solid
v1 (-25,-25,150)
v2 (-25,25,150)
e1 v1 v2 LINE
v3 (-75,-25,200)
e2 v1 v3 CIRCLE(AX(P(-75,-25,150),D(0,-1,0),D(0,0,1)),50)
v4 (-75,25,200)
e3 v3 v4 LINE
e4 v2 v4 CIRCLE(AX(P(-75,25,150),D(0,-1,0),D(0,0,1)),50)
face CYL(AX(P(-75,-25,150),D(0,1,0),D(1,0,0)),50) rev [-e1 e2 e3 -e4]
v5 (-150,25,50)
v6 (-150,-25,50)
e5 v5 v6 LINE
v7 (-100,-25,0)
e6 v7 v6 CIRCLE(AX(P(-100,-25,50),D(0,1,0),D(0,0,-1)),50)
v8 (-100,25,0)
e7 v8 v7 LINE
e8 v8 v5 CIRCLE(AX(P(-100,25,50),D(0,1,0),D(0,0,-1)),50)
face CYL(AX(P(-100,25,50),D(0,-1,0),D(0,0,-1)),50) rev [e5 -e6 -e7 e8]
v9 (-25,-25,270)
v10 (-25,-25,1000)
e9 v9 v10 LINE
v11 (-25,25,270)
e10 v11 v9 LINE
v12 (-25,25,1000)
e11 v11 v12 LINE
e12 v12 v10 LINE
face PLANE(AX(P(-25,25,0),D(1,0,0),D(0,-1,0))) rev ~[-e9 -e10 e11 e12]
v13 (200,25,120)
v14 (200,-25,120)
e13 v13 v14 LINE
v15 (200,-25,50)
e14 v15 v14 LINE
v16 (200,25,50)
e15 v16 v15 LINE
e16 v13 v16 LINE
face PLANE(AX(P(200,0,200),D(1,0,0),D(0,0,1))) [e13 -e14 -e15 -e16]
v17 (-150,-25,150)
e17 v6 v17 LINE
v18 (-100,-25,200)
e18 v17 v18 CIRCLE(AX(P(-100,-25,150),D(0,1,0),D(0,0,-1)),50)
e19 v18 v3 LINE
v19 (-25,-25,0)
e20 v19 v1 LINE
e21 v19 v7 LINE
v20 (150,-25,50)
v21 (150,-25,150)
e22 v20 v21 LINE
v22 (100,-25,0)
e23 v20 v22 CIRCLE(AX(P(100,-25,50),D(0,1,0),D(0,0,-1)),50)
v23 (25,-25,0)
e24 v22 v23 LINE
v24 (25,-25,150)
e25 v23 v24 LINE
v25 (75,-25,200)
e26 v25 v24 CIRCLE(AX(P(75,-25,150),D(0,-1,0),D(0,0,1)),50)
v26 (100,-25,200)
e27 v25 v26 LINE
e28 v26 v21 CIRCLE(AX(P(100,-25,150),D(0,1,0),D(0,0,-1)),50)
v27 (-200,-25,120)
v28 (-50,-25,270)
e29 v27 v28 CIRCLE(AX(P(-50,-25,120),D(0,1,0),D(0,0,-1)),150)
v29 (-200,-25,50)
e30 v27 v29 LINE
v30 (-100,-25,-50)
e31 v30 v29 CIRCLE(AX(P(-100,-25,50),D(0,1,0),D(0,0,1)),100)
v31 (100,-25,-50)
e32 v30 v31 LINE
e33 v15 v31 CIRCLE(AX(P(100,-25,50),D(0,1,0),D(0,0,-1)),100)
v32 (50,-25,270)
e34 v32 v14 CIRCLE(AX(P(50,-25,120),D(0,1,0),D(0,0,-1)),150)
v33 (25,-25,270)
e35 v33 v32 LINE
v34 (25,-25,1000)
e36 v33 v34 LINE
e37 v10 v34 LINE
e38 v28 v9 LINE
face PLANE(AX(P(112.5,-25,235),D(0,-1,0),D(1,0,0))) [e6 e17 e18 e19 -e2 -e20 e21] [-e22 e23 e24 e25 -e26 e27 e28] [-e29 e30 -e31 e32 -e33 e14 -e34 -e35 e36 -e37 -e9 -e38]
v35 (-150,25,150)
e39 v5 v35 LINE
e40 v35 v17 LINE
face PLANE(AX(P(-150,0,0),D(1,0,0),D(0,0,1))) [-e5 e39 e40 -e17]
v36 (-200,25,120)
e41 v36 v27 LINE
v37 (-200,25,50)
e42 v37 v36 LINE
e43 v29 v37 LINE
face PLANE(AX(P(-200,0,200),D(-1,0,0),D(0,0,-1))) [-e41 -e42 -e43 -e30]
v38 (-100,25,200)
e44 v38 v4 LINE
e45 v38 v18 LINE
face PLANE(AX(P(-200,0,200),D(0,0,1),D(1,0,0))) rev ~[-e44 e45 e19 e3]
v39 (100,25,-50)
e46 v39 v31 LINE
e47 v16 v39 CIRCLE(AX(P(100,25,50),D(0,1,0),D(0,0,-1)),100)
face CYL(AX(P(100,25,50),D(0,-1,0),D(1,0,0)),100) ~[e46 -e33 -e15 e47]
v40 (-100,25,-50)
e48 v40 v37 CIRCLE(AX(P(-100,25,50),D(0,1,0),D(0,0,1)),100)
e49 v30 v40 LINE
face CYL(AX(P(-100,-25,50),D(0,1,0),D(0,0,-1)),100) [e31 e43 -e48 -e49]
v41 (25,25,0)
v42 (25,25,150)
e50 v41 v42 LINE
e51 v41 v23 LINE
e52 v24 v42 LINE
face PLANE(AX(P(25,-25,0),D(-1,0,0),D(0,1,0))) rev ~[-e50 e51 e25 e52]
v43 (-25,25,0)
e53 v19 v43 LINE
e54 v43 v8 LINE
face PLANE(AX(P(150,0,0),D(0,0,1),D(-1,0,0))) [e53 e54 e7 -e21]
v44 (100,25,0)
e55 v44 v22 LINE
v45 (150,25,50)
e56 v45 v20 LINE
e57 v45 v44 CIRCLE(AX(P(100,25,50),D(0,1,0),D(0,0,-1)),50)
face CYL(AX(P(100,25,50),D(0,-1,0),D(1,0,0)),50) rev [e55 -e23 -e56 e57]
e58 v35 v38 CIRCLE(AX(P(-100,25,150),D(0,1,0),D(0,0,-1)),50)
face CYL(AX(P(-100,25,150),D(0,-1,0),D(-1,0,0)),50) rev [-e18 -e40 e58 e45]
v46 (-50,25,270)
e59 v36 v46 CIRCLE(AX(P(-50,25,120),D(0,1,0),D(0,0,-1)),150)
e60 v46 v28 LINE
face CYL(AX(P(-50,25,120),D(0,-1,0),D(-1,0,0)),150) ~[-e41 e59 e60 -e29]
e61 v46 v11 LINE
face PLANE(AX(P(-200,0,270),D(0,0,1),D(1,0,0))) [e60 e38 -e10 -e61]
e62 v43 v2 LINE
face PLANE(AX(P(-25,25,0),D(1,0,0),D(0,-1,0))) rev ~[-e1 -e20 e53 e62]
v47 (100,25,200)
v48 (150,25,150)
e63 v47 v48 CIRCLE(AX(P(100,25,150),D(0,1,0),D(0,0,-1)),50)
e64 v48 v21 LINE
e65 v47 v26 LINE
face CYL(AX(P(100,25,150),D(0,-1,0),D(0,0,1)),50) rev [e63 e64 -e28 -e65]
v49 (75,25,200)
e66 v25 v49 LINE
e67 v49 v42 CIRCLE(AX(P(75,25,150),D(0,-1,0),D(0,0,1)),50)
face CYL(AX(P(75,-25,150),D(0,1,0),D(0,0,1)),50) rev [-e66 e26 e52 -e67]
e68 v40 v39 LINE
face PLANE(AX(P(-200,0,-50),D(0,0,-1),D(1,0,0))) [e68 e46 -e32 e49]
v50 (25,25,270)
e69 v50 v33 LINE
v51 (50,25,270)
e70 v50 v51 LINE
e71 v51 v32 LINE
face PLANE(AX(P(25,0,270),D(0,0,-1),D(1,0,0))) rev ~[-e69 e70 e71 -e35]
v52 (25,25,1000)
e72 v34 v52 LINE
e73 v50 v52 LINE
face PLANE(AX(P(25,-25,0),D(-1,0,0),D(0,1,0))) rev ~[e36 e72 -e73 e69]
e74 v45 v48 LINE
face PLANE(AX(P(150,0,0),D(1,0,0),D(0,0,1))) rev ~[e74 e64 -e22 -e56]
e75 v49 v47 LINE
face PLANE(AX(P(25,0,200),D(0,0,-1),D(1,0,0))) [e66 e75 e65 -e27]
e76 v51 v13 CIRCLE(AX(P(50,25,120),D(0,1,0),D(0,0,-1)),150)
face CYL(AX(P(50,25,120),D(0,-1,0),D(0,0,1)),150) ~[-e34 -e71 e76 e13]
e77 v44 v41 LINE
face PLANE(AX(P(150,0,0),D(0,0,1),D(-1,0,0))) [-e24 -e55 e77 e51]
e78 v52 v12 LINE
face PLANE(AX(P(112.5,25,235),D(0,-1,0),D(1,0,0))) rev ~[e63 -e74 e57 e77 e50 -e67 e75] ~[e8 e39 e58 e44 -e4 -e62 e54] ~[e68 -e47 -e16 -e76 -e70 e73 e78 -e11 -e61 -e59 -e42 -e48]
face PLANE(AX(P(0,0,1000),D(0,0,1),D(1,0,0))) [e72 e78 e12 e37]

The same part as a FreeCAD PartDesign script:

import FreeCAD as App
import Part
import Sketcher
from FreeCAD import Vector
Q = App.Units.Quantity


def edges_at(feature, points):
    """Names of the edges that pass closest to the given points."""
    edges = feature.Shape.Edges
    near = lambda p: min(range(len(edges)), key=lambda i: edges[i].distToShape(Part.Vertex(*p))[0])
    return sorted({f"Edge{near(p) + 1}" for p in points})


def add_polygon(sketch, points):
    """Adds a closed chain of lines whose ends are joined by coincident constraints."""
    first, n = sketch.GeometryCount, len(points)
    for a, b in zip(points, points[1:] + points[:1]):
        sketch.addGeometry(Part.LineSegment(App.Vector(*a, 0), App.Vector(*b, 0)), False)
    for i in range(n):
        sketch.addConstraint(Sketcher.Constraint("Coincident", first + i, 2, first + (i + 1) % n, 1))

doc = App.newDocument("Part")
body = doc.addObject("PartDesign::Body", "Body")

# Sketch on XY plane
sketch1 = doc.addObject("Sketcher::SketchObject", "Sketch")
body.addObject(sketch1)
sketch1.AttachmentSupport = (doc.XY_Plane, [""])
sketch1.MapMode = "FlatFace"
add_polygon(sketch1, [(-25, -25), (25, -25), (25, 25), (-25, 25)])  # lines 0-3
sketch1.addConstraint(Sketcher.Constraint("Horizontal", 0))
sketch1.addConstraint(Sketcher.Constraint("Vertical", 1))
sketch1.addConstraint(Sketcher.Constraint("Horizontal", 2))
sketch1.addConstraint(Sketcher.Constraint("Vertical", 3))
sketch1.addConstraint(Sketcher.Constraint("Symmetric", 0, 2, 2, 2, -1, 1))
sketch1.addConstraint(Sketcher.Constraint("Equal", 2, 1))
sketch1.addConstraint(Sketcher.Constraint("DistanceX", 0, 1, 0, 2, Q("50 mm")))
pad1 = doc.addObject("PartDesign::Pad", "Pad")
body.addObject(pad1)
pad1.Profile = sketch1
pad1.Length = 1000

# Sketch on XZ plane
sketch2 = doc.addObject("Sketcher::SketchObject", "Sketch001")
body.addObject(sketch2)
sketch2.AttachmentSupport = (doc.XZ_Plane, [""])
sketch2.MapMode = "FlatFace"
add_polygon(sketch2, [(-200, -50), (200, -50), (200, 200), (150, 200), (150, 0), (-150, 0), (-150, 200), (-200, 200)])  # lines 0-7
sketch2.addConstraint(Sketcher.Constraint("Horizontal", 0))
sketch2.addConstraint(Sketcher.Constraint("Vertical", 1))
sketch2.addConstraint(Sketcher.Constraint("Horizontal", 2))
sketch2.addConstraint(Sketcher.Constraint("Vertical", 3))
sketch2.addConstraint(Sketcher.Constraint("Horizontal", 4))
sketch2.addConstraint(Sketcher.Constraint("Vertical", 5))
sketch2.addConstraint(Sketcher.Constraint("Horizontal", 6))
sketch2.addConstraint(Sketcher.Constraint("Vertical", 7))
sketch2.addConstraint(Sketcher.Constraint("Symmetric", 3, 2, 4, 2, -1, 1))
sketch2.addConstraint(Sketcher.Constraint("Symmetric", 1, 2, 6, 2, -2))
sketch2.addConstraint(Sketcher.Constraint("DistanceX", 0, 1, 0, 2, Q("400 mm")))
sketch2.addConstraint(Sketcher.Constraint("DistanceX", 2, 2, 2, 1, Q("50 mm")))
sketch2.addConstraint(Sketcher.Constraint("DistanceY", 1, 1, 1, 2, Q("250 mm")))
sketch2.addConstraint(Sketcher.Constraint("DistanceY", 3, 2, 3, 1, Q("200 mm")))
pad2 = doc.addObject("PartDesign::Pad", "Pad001")
body.addObject(pad2)
pad2.Profile = sketch2
pad2.Type = "TwoLengths"
pad2.Length = 25
pad2.Length2 = 25

# Sketch on XZ plane
sketch3 = doc.addObject("Sketcher::SketchObject", "Sketch002")
body.addObject(sketch3)
sketch3.AttachmentSupport = (doc.XZ_Plane, [""])
sketch3.MapMode = "FlatFace"
add_polygon(sketch3, [(25, 270), (25, 200), (200, 200), (200, 270)])  # lines 0-3
add_polygon(sketch3, [(-200, 270), (-200, 200), (-25, 200), (-25, 270)])  # lines 4-7
sketch3.addConstraint(Sketcher.Constraint("Vertical", 0))
sketch3.addConstraint(Sketcher.Constraint("Horizontal", 1))
sketch3.addConstraint(Sketcher.Constraint("Vertical", 2))
sketch3.addConstraint(Sketcher.Constraint("Horizontal", 3))
sketch3.addConstraint(Sketcher.Constraint("Vertical", 4))
sketch3.addConstraint(Sketcher.Constraint("Horizontal", 5))
sketch3.addConstraint(Sketcher.Constraint("Vertical", 6))
sketch3.addConstraint(Sketcher.Constraint("Horizontal", 7))
sketch3.addConstraint(Sketcher.Constraint("Symmetric", 1, 2, 4, 2, -2))
sketch3.addConstraint(Sketcher.Constraint("Symmetric", 3, 2, 6, 2, -2))
sketch3.addConstraint(Sketcher.Constraint("DistanceX", 1, 1, 1, 2, Q("175 mm")))
sketch3.addConstraint(Sketcher.Constraint("DistanceY", 0, 2, 0, 1, Q("70 mm")))
sketch3.addConstraint(Sketcher.Constraint("DistanceX", -1, 1, 0, 2, Q("25 mm")))
sketch3.addConstraint(Sketcher.Constraint("DistanceY", -1, 1, 0, 2, Q("200 mm")))
pad3 = doc.addObject("PartDesign::Pad", "Pad002")
body.addObject(pad3)
pad3.Profile = sketch3
pad3.Type = "TwoLengths"
pad3.Length = 25
pad3.Length2 = 25
doc.recompute()

fillet = doc.addObject("PartDesign::Fillet", "Fillet")
body.addObject(fillet)
fillet.Base = (pad3, edges_at(pad3, [(200, 0, 270), (-200, 0, 270)]))
fillet.Radius = 150
doc.recompute()

fillet2 = doc.addObject("PartDesign::Fillet", "Fillet001")
body.addObject(fillet2)
fillet2.Base = (fillet, edges_at(fillet, [(-200, 0, -50), (200, 0, -50)]))
fillet2.Radius = 100
doc.recompute()

fillet3 = doc.addObject("PartDesign::Fillet", "Fillet002")
body.addObject(fillet3)
fillet3.Base = (fillet2, edges_at(fillet2, [
    (-25, 0, 200),
    (25, 0, 200),
    (-150, 0, 200),
    (150, 0, 200),
    (-150, 0, 0),
    (150, 0, 0),
]))
fillet3.Radius = 50

doc.recompute()
